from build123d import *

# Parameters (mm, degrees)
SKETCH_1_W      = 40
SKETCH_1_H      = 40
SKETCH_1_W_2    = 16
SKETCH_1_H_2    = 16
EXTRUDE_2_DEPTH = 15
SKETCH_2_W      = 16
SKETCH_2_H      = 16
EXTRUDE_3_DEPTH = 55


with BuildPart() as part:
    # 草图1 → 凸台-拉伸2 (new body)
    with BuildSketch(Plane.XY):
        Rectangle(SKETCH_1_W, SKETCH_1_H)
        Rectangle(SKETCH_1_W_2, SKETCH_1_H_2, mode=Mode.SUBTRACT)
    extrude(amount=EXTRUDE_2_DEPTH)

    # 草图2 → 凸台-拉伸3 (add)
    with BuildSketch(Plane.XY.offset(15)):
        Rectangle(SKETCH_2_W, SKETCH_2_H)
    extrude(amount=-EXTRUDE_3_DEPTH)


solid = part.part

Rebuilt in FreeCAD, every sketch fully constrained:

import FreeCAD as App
import Part
import Sketcher

V = App.Vector

doc = App.newDocument("Part")
params = doc.addObject("Spreadsheet::Sheet", "Params")
for row, (alias, value) in enumerate([
    ("sketch1_width", "40 mm"),
    ("sketch1_width2", "16 mm"),
    ("pad1_length", "15 mm"),
    ("sketch2_width", "16 mm"),
    ("pad2_length", "55 mm"),
], start=1):
    params.set(f"A{row}", alias)
    params.set(f"B{row}", "=" + value)
    params.setAlias(f"B{row}", alias)

body = doc.addObject("PartDesign::Body", "Body")

# Sketch on XY plane
sketch1 = doc.addObject("Sketcher::SketchObject", "Sketch")
body.addObject(sketch1)
sketch1.AttachmentSupport = (doc.XY_Plane, [""])
sketch1.MapMode = "FlatFace"
sketch1.addGeometry([
    Part.LineSegment(V(-20, 20, 0), V(-20, -20, 0)),  # 0
    Part.LineSegment(V(-20, -20, 0), V(20, -20, 0)),  # 1
    Part.LineSegment(V(20, -20, 0), V(20, 20, 0)),  # 2
    Part.LineSegment(V(20, 20, 0), V(-20, 20, 0)),  # 3
    Part.LineSegment(V(8, -8, 0), V(-8, -8, 0)),  # 4
    Part.LineSegment(V(-8, -8, 0), V(-8, 8, 0)),  # 5
    Part.LineSegment(V(-8, 8, 0), V(8, 8, 0)),  # 6
    Part.LineSegment(V(8, 8, 0), V(8, -8, 0)),  # 7
], False)
sketch1.addConstraint([
    Sketcher.Constraint("Coincident", 0, 2, 1, 1),
    Sketcher.Constraint("Coincident", 1, 2, 2, 1),
    Sketcher.Constraint("Coincident", 2, 2, 3, 1),
    Sketcher.Constraint("Coincident", 3, 2, 0, 1),
    Sketcher.Constraint("Coincident", 4, 2, 5, 1),
    Sketcher.Constraint("Coincident", 5, 2, 6, 1),
    Sketcher.Constraint("Coincident", 6, 2, 7, 1),
    Sketcher.Constraint("Coincident", 7, 2, 4, 1),
    Sketcher.Constraint("Vertical", 0),
    Sketcher.Constraint("Horizontal", 1),
    Sketcher.Constraint("Vertical", 2),
    Sketcher.Constraint("Horizontal", 3),
    Sketcher.Constraint("Horizontal", 4),
    Sketcher.Constraint("Vertical", 5),
    Sketcher.Constraint("Horizontal", 6),
    Sketcher.Constraint("Vertical", 7),
    Sketcher.Constraint("Symmetric", 0, 2, 2, 2, -1, 1),
    Sketcher.Constraint("Symmetric", 4, 2, 6, 2, -1, 1),
    Sketcher.Constraint("Equal", 3, 0),
    Sketcher.Constraint("Equal", 6, 5),
    Sketcher.Constraint("DistanceX", 1, 1, 1, 2, 40.0),
    Sketcher.Constraint("DistanceX", 4, 2, 4, 1, 16.0),
])
sketch1.setExpression("Constraints[20]", "Params.sketch1_width")
sketch1.setExpression("Constraints[21]", "Params.sketch1_width2")
pad1 = doc.addObject("PartDesign::Pad", "Pad")
body.addObject(pad1)
pad1.Profile = sketch1
pad1.setExpression("Length", "Params.pad1_length")

# Sketch on XY plane
sketch2 = doc.addObject("Sketcher::SketchObject", "Sketch001")
body.addObject(sketch2)
sketch2.AttachmentSupport = (doc.XY_Plane, [""])
sketch2.MapMode = "FlatFace"
sketch2.AttachmentOffset = App.Placement(V(0, 0, 15), App.Rotation())
sketch2.addGeometry([
    Part.LineSegment(V(-8, 8, 0), V(-8, -8, 0)),
    Part.LineSegment(V(-8, -8, 0), V(8, -8, 0)),
    Part.LineSegment(V(8, -8, 0), V(8, 8, 0)),
    Part.LineSegment(V(8, 8, 0), V(-8, 8, 0)),
], False)
sketch2.addConstraint([
    Sketcher.Constraint("Coincident", 0, 2, 1, 1),
    Sketcher.Constraint("Coincident", 1, 2, 2, 1),
    Sketcher.Constraint("Coincident", 2, 2, 3, 1),
    Sketcher.Constraint("Coincident", 3, 2, 0, 1),
    Sketcher.Constraint("Vertical", 0),
    Sketcher.Constraint("Horizontal", 1),
    Sketcher.Constraint("Vertical", 2),
    Sketcher.Constraint("Horizontal", 3),
    Sketcher.Constraint("Symmetric", 0, 2, 2, 2, -1, 1),
    Sketcher.Constraint("Equal", 3, 0),
    Sketcher.Constraint("DistanceX", 1, 1, 1, 2, 16.0),
])
sketch2.setExpression("Constraints[10]", "Params.sketch2_width")
pad2 = doc.addObject("PartDesign::Pad", "Pad001")
body.addObject(pad2)
pad2.Profile = sketch2
pad2.setExpression("Length", "Params.pad2_length")
pad2.Reversed = True

doc.recompute()
